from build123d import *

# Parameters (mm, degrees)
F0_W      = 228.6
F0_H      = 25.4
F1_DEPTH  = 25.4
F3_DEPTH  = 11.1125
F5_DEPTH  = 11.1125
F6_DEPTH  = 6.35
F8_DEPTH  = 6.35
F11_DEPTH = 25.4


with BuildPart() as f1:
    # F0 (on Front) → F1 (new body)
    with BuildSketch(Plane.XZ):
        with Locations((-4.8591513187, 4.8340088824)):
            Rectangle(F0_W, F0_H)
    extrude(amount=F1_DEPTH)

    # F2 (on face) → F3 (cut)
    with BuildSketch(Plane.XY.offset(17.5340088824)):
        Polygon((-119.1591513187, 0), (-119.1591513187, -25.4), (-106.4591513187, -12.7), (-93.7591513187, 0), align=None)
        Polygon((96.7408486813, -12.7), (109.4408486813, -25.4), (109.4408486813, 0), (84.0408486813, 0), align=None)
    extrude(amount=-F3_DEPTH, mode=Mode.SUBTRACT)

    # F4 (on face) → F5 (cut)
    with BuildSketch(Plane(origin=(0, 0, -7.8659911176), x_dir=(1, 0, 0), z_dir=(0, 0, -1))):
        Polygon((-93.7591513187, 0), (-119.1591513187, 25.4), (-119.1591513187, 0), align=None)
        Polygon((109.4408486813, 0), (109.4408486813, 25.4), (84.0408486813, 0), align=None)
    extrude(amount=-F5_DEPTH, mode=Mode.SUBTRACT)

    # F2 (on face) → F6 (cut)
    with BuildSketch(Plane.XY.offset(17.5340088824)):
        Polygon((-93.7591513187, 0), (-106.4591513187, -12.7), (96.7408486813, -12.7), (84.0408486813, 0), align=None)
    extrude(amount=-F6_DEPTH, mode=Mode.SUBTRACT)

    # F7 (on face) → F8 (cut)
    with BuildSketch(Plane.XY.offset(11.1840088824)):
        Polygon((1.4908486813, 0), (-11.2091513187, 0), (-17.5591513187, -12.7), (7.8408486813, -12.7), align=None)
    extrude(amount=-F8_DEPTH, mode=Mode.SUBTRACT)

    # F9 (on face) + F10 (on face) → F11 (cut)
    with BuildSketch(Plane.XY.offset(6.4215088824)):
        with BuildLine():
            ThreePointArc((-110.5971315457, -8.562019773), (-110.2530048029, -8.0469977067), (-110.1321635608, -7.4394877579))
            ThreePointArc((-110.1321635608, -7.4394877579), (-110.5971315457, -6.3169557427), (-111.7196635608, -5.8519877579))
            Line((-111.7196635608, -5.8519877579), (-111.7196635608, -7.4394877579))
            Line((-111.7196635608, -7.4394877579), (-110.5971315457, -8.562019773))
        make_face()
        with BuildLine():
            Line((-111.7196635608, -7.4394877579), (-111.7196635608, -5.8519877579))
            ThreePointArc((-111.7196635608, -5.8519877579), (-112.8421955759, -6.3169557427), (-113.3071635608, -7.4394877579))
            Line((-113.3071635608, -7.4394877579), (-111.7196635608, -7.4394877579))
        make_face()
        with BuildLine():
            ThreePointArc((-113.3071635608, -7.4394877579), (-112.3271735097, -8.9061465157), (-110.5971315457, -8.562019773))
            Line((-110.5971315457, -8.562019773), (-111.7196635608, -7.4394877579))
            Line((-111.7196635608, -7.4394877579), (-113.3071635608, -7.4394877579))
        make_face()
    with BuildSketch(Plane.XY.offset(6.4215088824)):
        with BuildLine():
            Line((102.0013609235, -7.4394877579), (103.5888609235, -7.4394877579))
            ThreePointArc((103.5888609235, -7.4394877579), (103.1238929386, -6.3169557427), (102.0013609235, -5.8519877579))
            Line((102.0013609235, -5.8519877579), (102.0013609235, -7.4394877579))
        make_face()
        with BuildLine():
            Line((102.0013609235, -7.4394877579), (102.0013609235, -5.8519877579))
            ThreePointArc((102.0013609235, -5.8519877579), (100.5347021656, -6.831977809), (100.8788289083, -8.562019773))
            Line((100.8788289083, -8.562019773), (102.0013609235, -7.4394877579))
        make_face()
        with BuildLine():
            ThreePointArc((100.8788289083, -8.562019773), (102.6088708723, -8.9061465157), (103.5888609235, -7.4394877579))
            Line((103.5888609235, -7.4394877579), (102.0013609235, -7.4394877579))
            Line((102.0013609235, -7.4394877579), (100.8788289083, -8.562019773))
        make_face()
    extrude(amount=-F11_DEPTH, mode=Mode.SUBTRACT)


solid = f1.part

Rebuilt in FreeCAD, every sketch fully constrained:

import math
import FreeCAD as App
import Part
import Sketcher
from FreeCAD import Vector
Q = App.Units.Quantity

doc = App.newDocument("Part")
body = doc.addObject("PartDesign::Body", "Body")

sketch1 = body.newObject("Sketcher::SketchObject", "Sketch")
sketch1.AttachmentSupport = (doc.getObject("XZ_Plane"), [""])
sketch1.MapMode = "FlatFace"
sketch1.addGeometry(Part.LineSegment(Vector(-119, 18, 0), Vector(-119, -8, 0)), False)
sketch1.addGeometry(Part.LineSegment(Vector(-119, -8, 0), Vector(109, -8, 0)), False)
sketch1.addGeometry(Part.LineSegment(Vector(109, -8, 0), Vector(109, 18, 0)), False)
sketch1.addGeometry(Part.LineSegment(Vector(109, 18, 0), Vector(-119, 18, 0)), False)
sketch1.addConstraint(Sketcher.Constraint("Coincident", 0, 2, 1, 1))
sketch1.addConstraint(Sketcher.Constraint("Coincident", 1, 2, 2, 1))
sketch1.addConstraint(Sketcher.Constraint("Coincident", 2, 2, 3, 1))
sketch1.addConstraint(Sketcher.Constraint("Coincident", 3, 2, 0, 1))
sketch1.addConstraint(Sketcher.Constraint("Vertical", 0))
sketch1.addConstraint(Sketcher.Constraint("Horizontal", 1))
sketch1.addConstraint(Sketcher.Constraint("Vertical", 2))
sketch1.addConstraint(Sketcher.Constraint("Horizontal", 3))
sketch1.addConstraint(Sketcher.Constraint("DistanceX", 1, 1, 1, 2, Q("9 in")))
sketch1.addConstraint(Sketcher.Constraint("DistanceY", 0, 2, 0, 1, Q("1 in")))
sketch1.addConstraint(Sketcher.Constraint("DistanceX", 0, 2, -1, 1, 119.159151))
sketch1.addConstraint(Sketcher.Constraint("DistanceY", 0, 2, -1, 1, 7.865991))
pad1 = body.newObject("PartDesign::Pad", "Pad")
pad1.Profile = sketch1
pad1.Length = Q("1 in")

sketch2 = body.newObject("Sketcher::SketchObject", "Sketch001")
sketch2.AttachmentSupport = (doc.getObject("XY_Plane"), [""])
sketch2.MapMode = "FlatFace"
sketch2.AttachmentOffset = App.Placement(Vector(0, 0, 17.534009), App.Rotation())
sketch2.addGeometry(Part.LineSegment(Vector(-119, 0, 0), Vector(-119, -25, 0)), False)
sketch2.addGeometry(Part.LineSegment(Vector(-119, -25, 0), Vector(-94, 0, 0)), False)
sketch2.addGeometry(Part.LineSegment(Vector(-94, 0, 0), Vector(-119, 0, 0)), False)
sketch2.addGeometry(Part.LineSegment(Vector(109, -25, 0), Vector(109, 0, 0)), False)
sketch2.addGeometry(Part.LineSegment(Vector(109, 0, 0), Vector(84, 0, 0)), False)
sketch2.addGeometry(Part.LineSegment(Vector(84, 0, 0), Vector(109, -25, 0)), False)
sketch2.addConstraint(Sketcher.Constraint("Coincident", 0, 2, 1, 1))
sketch2.addConstraint(Sketcher.Constraint("Coincident", 1, 2, 2, 1))
sketch2.addConstraint(Sketcher.Constraint("Coincident", 2, 2, 0, 1))
sketch2.addConstraint(Sketcher.Constraint("Coincident", 3, 2, 4, 1))
sketch2.addConstraint(Sketcher.Constraint("Coincident", 4, 2, 5, 1))
sketch2.addConstraint(Sketcher.Constraint("Coincident", 5, 2, 3, 1))
sketch2.addConstraint(Sketcher.Constraint("Vertical", 0))
sketch2.addConstraint(Sketcher.Constraint("Horizontal", 2))
sketch2.addConstraint(Sketcher.Constraint("Vertical", 3))
sketch2.addConstraint(Sketcher.Constraint("Horizontal", 4))
sketch2.addConstraint(Sketcher.Constraint("PointOnObject", 1, 2, -1))
sketch2.addConstraint(Sketcher.Constraint("PointOnObject", 3, 2, -1))
sketch2.addConstraint(Sketcher.Constraint("Perpendicular", 1, 5))
sketch2.addConstraint(Sketcher.Constraint("Horizontal", 0, 2, 5, 2))
sketch2.addConstraint(Sketcher.Constraint("Equal", 2, 4))
sketch2.addConstraint(Sketcher.Constraint("DistanceX", 2, 2, 2, 1, Q("1 in")))
sketch2.addConstraint(Sketcher.Constraint("DistanceX", 1, 2, 3, 2, Q("8 in")))
sketch2.addConstraint(Sketcher.Constraint("DistanceX", 0, 2, -1, 1, 119.159151))
pocket1 = body.newObject("PartDesign::Pocket", "Pocket")
pocket1.Profile = sketch2
pocket1.Length = Q("0.4375 in")

sketch3 = body.newObject("Sketcher::SketchObject", "Sketch002")
sketch3.AttachmentSupport = (doc.getObject("XY_Plane"), [""])
sketch3.MapMode = "FlatFace"
sketch3.AttachmentOffset = App.Placement(Vector(0, 0, -7.865991), App.Rotation())
sketch3.addGeometry(Part.LineSegment(Vector(-94, 0, 0), Vector(-119, -25, 0)), False)
sketch3.addGeometry(Part.LineSegment(Vector(-119, -25, 0), Vector(-119, 0, 0)), False)
sketch3.addGeometry(Part.LineSegment(Vector(-119, 0, 0), Vector(-94, 0, 0)), False)
sketch3.addGeometry(Part.LineSegment(Vector(109, 0, 0), Vector(109, -25, 0)), False)
sketch3.addGeometry(Part.LineSegment(Vector(109, -25, 0), Vector(84, 0, 0)), False)
sketch3.addGeometry(Part.LineSegment(Vector(84, 0, 0), Vector(109, 0, 0)), False)
sketch3.addConstraint(Sketcher.Constraint("Coincident", 0, 2, 1, 1))
sketch3.addConstraint(Sketcher.Constraint("Coincident", 1, 2, 2, 1))
sketch3.addConstraint(Sketcher.Constraint("Coincident", 2, 2, 0, 1))
sketch3.addConstraint(Sketcher.Constraint("Coincident", 3, 2, 4, 1))
sketch3.addConstraint(Sketcher.Constraint("Coincident", 4, 2, 5, 1))
sketch3.addConstraint(Sketcher.Constraint("Coincident", 5, 2, 3, 1))
sketch3.addConstraint(Sketcher.Constraint("Vertical", 1))
sketch3.addConstraint(Sketcher.Constraint("Horizontal", 2))
sketch3.addConstraint(Sketcher.Constraint("Vertical", 3))
sketch3.addConstraint(Sketcher.Constraint("Horizontal", 5))
sketch3.addConstraint(Sketcher.Constraint("PointOnObject", 1, 2, -1))
sketch3.addConstraint(Sketcher.Constraint("PointOnObject", 4, 2, -1))
sketch3.addConstraint(Sketcher.Constraint("Perpendicular", 0, 4))
sketch3.addConstraint(Sketcher.Constraint("Horizontal", 0, 2, 3, 2))
sketch3.addConstraint(Sketcher.Constraint("Equal", 2, 5))
sketch3.addConstraint(Sketcher.Constraint("DistanceX", 2, 1, 2, 2, Q("1 in")))
sketch3.addConstraint(Sketcher.Constraint("DistanceX", 2, 2, 3, 2, Q("8 in")))
sketch3.addConstraint(Sketcher.Constraint("DistanceX", 0, 2, -1, 1, 119.159151))
pocket2 = body.newObject("PartDesign::Pocket", "Pocket001")
pocket2.Profile = sketch3
pocket2.Length = Q("0.4375 in")
pocket2.Reversed = True

sketch4 = body.newObject("Sketcher::SketchObject", "Sketch003")
sketch4.AttachmentSupport = (doc.getObject("XY_Plane"), [""])
sketch4.MapMode = "FlatFace"
sketch4.AttachmentOffset = App.Placement(Vector(0, 0, 17.534009), App.Rotation())
sketch4.addGeometry(Part.LineSegment(Vector(-94, 0, 0), Vector(-106, -13, 0)), False)
sketch4.addGeometry(Part.LineSegment(Vector(-106, -13, 0), Vector(97, -13, 0)), False)
sketch4.addGeometry(Part.LineSegment(Vector(97, -13, 0), Vector(84, 0, 0)), False)
sketch4.addGeometry(Part.LineSegment(Vector(84, 0, 0), Vector(-94, 0, 0)), False)
sketch4.addConstraint(Sketcher.Constraint("Coincident", 0, 2, 1, 1))
sketch4.addConstraint(Sketcher.Constraint("Coincident", 1, 2, 2, 1))
sketch4.addConstraint(Sketcher.Constraint("Coincident", 2, 2, 3, 1))
sketch4.addConstraint(Sketcher.Constraint("Coincident", 3, 2, 0, 1))
sketch4.addConstraint(Sketcher.Constraint("Horizontal", 1))
sketch4.addConstraint(Sketcher.Constraint("Horizontal", 3))
sketch4.addConstraint(Sketcher.Constraint("PointOnObject", 2, 2, -1))
sketch4.addConstraint(Sketcher.Constraint("Perpendicular", 0, 2))
sketch4.addConstraint(Sketcher.Constraint("Equal", 0, 2))
sketch4.addConstraint(Sketcher.Constraint("DistanceX", 1, 1, 1, 2, Q("8 in")))
sketch4.addConstraint(Sketcher.Constraint("DistanceX", 3, 2, 3, 1, Q("7 in")))
sketch4.addConstraint(Sketcher.Constraint("DistanceX", 0, 2, -1, 1, 106.459151))
pocket3 = body.newObject("PartDesign::Pocket", "Pocket002")
pocket3.Profile = sketch4
pocket3.Length = Q("0.25 in")

sketch5 = body.newObject("Sketcher::SketchObject", "Sketch004")
sketch5.AttachmentSupport = (doc.getObject("XY_Plane"), [""])
sketch5.MapMode = "FlatFace"
sketch5.AttachmentOffset = App.Placement(Vector(0, 0, 11.184009), App.Rotation())
sketch5.addGeometry(Part.LineSegment(Vector(1, 0, 0), Vector(-11, 0, 0)), False)
sketch5.addGeometry(Part.LineSegment(Vector(-11, 0, 0), Vector(-18, -13, 0)), False)
sketch5.addGeometry(Part.LineSegment(Vector(-18, -13, 0), Vector(8, -13, 0)), False)
sketch5.addGeometry(Part.LineSegment(Vector(8, -13, 0), Vector(1, 0, 0)), False)
sketch5.addConstraint(Sketcher.Constraint("Coincident", 0, 2, 1, 1))
sketch5.addConstraint(Sketcher.Constraint("Coincident", 1, 2, 2, 1))
sketch5.addConstraint(Sketcher.Constraint("Coincident", 2, 2, 3, 1))
sketch5.addConstraint(Sketcher.Constraint("Coincident", 3, 2, 0, 1))
sketch5.addConstraint(Sketcher.Constraint("Horizontal", 0))
sketch5.addConstraint(Sketcher.Constraint("Horizontal", 2))
sketch5.addConstraint(Sketcher.Constraint("PointOnObject", 0, 2, -1))
sketch5.addConstraint(Sketcher.Constraint("Equal", 1, 3))
sketch5.addConstraint(Sketcher.Constraint("DistanceX", 2, 1, 2, 2, Q("1 in")))
sketch5.addConstraint(Sketcher.Constraint("DistanceX", 0, 2, 0, 1, Q("0.5 in")))
sketch5.addConstraint(Sketcher.Constraint("DistanceY", 1, 2, -1, 1, Q("0.5 in")))
sketch5.addConstraint(Sketcher.Constraint("DistanceX", 0, 2, -1, 1, 11.209151))
pocket4 = body.newObject("PartDesign::Pocket", "Pocket003")
pocket4.Profile = sketch5
pocket4.Length = Q("0.25 in")

sketch6 = body.newObject("Sketcher::SketchObject", "Sketch005")
sketch6.AttachmentSupport = (doc.getObject("XY_Plane"), [""])
sketch6.MapMode = "FlatFace"
sketch6.AttachmentOffset = App.Placement(Vector(0, 0, 6.421509), App.Rotation())
sketch6.addGeometry(Part.ArcOfCircle(Part.Circle(Vector(-111.7, -7.4, 0), Vector(0, 0, 1), 1.6), math.radians(-45), math.radians(0)), False)
sketch6.addGeometry(Part.ArcOfCircle(Part.Circle(Vector(-111.7, -7.4, 0), Vector(0, 0, 1), 1.6), math.radians(0), math.radians(90)), False)
sketch6.addGeometry(Part.ArcOfCircle(Part.Circle(Vector(-111.7, -7.4, 0), Vector(0, 0, 1), 1.6), math.radians(90), math.radians(180)), False)
sketch6.addGeometry(Part.ArcOfCircle(Part.Circle(Vector(-111.7, -7.4, 0), Vector(0, 0, 1), 1.6), math.radians(180), math.radians(315)), False)
sketch6.addGeometry(Part.ArcOfCircle(Part.Circle(Vector(102, -7.4, 0), Vector(0, 0, 1), 1.6), math.radians(0), math.radians(90)), False)
sketch6.addGeometry(Part.ArcOfCircle(Part.Circle(Vector(102, -7.4, 0), Vector(0, 0, 1), 1.6), math.radians(90), math.radians(225)), False)
sketch6.addGeometry(Part.ArcOfCircle(Part.Circle(Vector(102, -7.4, 0), Vector(0, 0, 1), 1.6), math.radians(-135), math.radians(0)), False)
sketch6.addConstraint(Sketcher.Constraint("Tangent", 0, 2, 1, 1))
sketch6.addConstraint(Sketcher.Constraint("Tangent", 1, 2, 2, 1))
sketch6.addConstraint(Sketcher.Constraint("Tangent", 2, 2, 3, 1))
sketch6.addConstraint(Sketcher.Constraint("Tangent", 3, 2, 0, 1))
sketch6.addConstraint(Sketcher.Constraint("Tangent", 4, 2, 5, 1))
sketch6.addConstraint(Sketcher.Constraint("Tangent", 5, 2, 6, 1))
sketch6.addConstraint(Sketcher.Constraint("Tangent", 6, 2, 4, 1))
sketch6.addConstraint(Sketcher.Constraint("Equal", 0, 1))
sketch6.addConstraint(Sketcher.Constraint("Equal", 3, 4))
sketch6.addConstraint(Sketcher.Constraint("Horizontal", 3, 3, 4, 3))
sketch6.addConstraint(Sketcher.Constraint("Horizontal", 6, 3, 0, 2))
sketch6.addConstraint(Sketcher.Constraint("Horizontal", 0, 2, 2, 2))
sketch6.addConstraint(Sketcher.Constraint("Horizontal", 3, 2, 5, 2))
sketch6.addConstraint(Sketcher.Constraint("Horizontal", 2, 2, 6, 2))
sketch6.addConstraint(Sketcher.Constraint("Vertical", 3, 3, 1, 2))
sketch6.addConstraint(Sketcher.Constraint("Vertical", 6, 3, 4, 2))
sketch6.addConstraint(Sketcher.Constraint("Radius", 0, Q("0.0625 in")))
sketch6.addConstraint(Sketcher.Constraint("DistanceX", -1, 1, 4, 3, 102.001361))
sketch6.addConstraint(Sketcher.Constraint("DistanceX", 3, 2, -1, 1, 110.597132))
sketch6.addConstraint(Sketcher.Constraint("DistanceY", 3, 2, -1, 1, 8.56202))
sketch6.addConstraint(Sketcher.Constraint("DistanceX", -1, 1, 5, 2, 100.878829))
pocket5 = body.newObject("PartDesign::Pocket", "Pocket004")
pocket5.Profile = sketch6
pocket5.Length = Q("1 in")

doc.recompute()
